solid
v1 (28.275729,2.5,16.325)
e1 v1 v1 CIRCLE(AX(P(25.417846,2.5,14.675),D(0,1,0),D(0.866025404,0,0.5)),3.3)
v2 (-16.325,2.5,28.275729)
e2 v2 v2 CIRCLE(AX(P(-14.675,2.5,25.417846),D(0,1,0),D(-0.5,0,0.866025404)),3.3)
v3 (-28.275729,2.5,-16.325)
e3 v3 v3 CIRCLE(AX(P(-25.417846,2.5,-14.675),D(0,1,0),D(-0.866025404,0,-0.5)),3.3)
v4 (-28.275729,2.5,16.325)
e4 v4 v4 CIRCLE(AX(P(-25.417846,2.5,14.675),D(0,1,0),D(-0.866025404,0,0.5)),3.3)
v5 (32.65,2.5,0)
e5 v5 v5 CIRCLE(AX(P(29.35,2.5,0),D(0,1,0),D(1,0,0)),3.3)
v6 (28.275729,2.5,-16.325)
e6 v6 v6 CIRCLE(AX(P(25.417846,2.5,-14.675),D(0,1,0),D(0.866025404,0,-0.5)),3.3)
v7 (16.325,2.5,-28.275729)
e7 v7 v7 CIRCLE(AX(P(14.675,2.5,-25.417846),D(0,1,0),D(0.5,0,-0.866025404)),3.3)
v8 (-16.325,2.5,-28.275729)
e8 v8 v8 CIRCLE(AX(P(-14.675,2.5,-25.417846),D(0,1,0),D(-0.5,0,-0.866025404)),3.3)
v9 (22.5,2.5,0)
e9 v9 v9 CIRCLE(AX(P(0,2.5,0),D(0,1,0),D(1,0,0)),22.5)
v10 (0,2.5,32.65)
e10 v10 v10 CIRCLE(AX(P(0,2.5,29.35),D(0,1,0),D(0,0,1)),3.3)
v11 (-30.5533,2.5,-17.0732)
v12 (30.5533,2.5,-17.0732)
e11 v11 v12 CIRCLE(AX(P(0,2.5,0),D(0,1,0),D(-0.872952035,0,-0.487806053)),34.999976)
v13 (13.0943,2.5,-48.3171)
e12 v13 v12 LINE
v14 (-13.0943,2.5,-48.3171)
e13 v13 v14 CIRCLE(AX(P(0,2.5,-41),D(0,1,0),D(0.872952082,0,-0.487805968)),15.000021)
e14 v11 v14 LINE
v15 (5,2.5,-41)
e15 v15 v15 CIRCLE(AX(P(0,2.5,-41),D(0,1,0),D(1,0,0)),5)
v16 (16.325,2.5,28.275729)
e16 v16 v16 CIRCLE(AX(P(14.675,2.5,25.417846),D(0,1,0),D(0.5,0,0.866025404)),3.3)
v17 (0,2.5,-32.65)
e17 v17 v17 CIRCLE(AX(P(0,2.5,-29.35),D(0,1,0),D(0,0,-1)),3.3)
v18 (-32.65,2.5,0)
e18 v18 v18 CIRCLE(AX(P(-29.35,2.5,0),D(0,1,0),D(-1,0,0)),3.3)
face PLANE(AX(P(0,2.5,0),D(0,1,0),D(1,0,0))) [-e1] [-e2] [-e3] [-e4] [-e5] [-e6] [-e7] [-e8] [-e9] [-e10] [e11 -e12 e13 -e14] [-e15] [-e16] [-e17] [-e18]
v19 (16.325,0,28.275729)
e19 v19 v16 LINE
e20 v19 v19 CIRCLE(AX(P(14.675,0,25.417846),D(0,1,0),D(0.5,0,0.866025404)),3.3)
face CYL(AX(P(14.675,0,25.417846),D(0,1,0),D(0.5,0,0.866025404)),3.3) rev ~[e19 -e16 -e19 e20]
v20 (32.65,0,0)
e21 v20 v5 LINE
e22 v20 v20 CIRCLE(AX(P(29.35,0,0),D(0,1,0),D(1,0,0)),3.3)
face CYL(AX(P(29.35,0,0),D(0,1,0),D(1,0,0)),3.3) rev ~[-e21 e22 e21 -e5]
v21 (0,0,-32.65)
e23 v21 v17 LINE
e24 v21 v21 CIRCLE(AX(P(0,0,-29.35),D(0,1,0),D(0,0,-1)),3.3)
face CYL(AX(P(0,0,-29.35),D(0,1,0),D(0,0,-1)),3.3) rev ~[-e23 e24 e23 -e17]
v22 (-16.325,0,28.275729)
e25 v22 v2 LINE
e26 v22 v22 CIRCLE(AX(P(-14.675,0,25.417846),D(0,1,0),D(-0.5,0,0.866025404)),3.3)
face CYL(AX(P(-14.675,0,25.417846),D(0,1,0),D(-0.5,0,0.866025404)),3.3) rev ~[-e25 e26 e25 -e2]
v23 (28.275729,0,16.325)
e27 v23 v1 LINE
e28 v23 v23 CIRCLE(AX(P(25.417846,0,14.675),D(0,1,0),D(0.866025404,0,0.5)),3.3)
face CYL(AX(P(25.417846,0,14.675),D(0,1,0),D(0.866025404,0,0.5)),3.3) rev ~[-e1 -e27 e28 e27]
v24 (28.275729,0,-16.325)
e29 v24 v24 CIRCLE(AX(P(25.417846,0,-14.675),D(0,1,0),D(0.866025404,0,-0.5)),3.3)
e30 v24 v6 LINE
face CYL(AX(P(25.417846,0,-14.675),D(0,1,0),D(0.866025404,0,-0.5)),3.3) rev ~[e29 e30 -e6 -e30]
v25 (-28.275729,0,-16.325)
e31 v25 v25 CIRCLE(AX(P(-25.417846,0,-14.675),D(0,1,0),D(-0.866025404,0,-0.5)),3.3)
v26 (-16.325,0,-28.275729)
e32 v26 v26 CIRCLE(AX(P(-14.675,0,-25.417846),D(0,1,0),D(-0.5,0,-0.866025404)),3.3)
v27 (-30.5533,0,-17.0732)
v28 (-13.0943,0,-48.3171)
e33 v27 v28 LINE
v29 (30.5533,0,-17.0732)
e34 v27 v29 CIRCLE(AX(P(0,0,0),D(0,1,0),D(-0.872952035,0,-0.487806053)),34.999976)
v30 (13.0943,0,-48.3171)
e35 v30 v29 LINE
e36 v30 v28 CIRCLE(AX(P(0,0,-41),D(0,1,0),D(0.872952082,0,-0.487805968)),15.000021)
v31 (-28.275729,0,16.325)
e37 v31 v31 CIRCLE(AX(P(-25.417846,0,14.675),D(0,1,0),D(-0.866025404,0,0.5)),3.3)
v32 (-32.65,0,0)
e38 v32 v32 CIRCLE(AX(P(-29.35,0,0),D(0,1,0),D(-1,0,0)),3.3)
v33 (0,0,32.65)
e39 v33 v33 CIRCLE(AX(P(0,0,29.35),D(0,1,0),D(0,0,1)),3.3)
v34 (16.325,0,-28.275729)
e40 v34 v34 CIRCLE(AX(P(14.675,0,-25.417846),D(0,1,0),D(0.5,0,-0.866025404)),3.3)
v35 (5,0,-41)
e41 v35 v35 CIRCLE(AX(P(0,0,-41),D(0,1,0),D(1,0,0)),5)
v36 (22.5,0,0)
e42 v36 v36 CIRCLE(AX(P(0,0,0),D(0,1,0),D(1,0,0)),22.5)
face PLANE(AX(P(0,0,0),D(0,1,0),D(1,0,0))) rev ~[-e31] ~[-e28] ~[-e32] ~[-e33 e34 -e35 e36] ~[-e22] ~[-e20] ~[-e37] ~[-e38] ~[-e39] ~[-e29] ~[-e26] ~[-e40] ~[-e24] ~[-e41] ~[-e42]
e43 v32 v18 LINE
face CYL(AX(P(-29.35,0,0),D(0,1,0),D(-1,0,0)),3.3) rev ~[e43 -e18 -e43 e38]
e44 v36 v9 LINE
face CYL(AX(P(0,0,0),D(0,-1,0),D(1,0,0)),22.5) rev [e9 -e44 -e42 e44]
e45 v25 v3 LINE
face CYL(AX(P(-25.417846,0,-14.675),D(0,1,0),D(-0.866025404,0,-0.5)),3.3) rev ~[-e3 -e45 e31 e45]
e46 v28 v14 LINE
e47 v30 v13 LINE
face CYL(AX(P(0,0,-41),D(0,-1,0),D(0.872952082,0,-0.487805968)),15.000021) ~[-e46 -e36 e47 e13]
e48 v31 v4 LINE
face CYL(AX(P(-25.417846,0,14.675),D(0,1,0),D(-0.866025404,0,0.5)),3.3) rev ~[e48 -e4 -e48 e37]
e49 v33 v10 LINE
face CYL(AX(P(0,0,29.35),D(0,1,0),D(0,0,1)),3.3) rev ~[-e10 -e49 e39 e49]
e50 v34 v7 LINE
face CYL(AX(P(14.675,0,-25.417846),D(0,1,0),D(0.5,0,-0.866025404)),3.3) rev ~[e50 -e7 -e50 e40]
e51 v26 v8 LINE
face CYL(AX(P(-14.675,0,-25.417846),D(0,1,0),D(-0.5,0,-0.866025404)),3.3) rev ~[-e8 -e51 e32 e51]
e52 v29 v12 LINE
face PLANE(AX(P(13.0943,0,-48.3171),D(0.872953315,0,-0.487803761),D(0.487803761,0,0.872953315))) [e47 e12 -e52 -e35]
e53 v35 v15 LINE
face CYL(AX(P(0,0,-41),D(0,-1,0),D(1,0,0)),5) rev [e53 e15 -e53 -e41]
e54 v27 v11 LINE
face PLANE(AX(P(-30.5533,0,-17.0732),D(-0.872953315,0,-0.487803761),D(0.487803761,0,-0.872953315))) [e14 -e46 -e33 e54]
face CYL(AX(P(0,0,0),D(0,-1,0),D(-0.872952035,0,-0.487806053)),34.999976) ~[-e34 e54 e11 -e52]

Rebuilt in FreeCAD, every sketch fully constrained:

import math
import FreeCAD as App
import Part
import Sketcher

V = App.Vector
Q = App.Units.Quantity

doc = App.newDocument("Part")
body = doc.addObject("PartDesign::Body", "Body")

# Sketch on XZ plane
sketch1 = body.newObject("Sketcher::SketchObject", "Sketch")
sketch1.AttachmentSupport = (doc.getObject("XZ_Plane"), [""])
sketch1.MapMode = "FlatFace"
sketch1.addGeometry([
    Part.LineSegment(V(-13, -48, 0), V(-31, -17, 0)),  # 0
    Part.ArcOfCircle(Part.Circle(V(0, 0, 0), V(0, 0, 1), 35), math.radians(-29), math.radians(209)),  # 1
    Part.LineSegment(V(31, -17, 0), V(13, -48, 0)),  # 2
    Part.ArcOfCircle(Part.Circle(V(0, -41, 0), V(0, 0, 1), 15), math.radians(-151), math.radians(-29)),  # 3
    Part.Circle(V(0, 0, 0), V(0, 0, 1), 22),  # 4
    Part.Circle(V(0, -41, 0), V(0, 0, 1), 5),  # 5
], False)
sketch1.addConstraint([
    Sketcher.Constraint("Tangent", 0, 2, 1, 2),
    Sketcher.Constraint("Tangent", 1, 1, 2, 1),
    Sketcher.Constraint("Tangent", 2, 2, 3, 2),
    Sketcher.Constraint("Tangent", 3, 1, 0, 1),
    Sketcher.Constraint("Coincident", 1, 3, -1, 1),
    Sketcher.Constraint("Coincident", 4, 3, -1, 1),
    Sketcher.Constraint("Coincident", 5, 3, 3, 3),
    Sketcher.Constraint("PointOnObject", 3, 3, -2),
    Sketcher.Constraint("Diameter", 4, Q("45 mm")),
    Sketcher.Constraint("Diameter", 5, Q("10 mm")),
    Sketcher.Constraint("Radius", 1, Q("35 mm")),
    Sketcher.Constraint("Radius", 3, Q("15 mm")),
    Sketcher.Constraint("DistanceY", 3, 3, -1, 1, Q("41 mm")),
])
pad1 = body.newObject("PartDesign::Pad", "Pad")
pad1.Profile = sketch1
pad1.Length = 2.5
pad1.Reversed = True

# Sketch on XZ plane
sketch2 = body.newObject("Sketcher::SketchObject", "Sketch001")
sketch2.AttachmentSupport = (doc.getObject("XZ_Plane"), [""])
sketch2.MapMode = "FlatFace"
sketch2.addGeometry(Part.Circle(V(0, -29.4, 0), V(0, 0, 1), 3.3), False)
sketch2.addConstraint([
    Sketcher.Constraint("PointOnObject", 0, 3, -2),
    Sketcher.Constraint("Diameter", 0, Q("6.6 mm")),
    Sketcher.Constraint("DistanceY", 0, 3, -1, 1, Q("29.35 mm")),
])
doc.recompute()
hole = body.newObject("PartDesign::Hole", "Hole")
hole.Profile = sketch2
hole.ThreadType = "None"
hole.Diameter = 6.6
hole.DepthType = "ThroughAll"
doc.recompute()

polarpattern = body.newObject("PartDesign::PolarPattern", "PolarPattern")
polarpattern.Originals = [hole]
polarpattern.Axis = (doc.getObject("Y_Axis"), [""])
polarpattern.Angle = 360
polarpattern.Occurrences = 12
body.Tip = polarpattern

doc.recompute()
